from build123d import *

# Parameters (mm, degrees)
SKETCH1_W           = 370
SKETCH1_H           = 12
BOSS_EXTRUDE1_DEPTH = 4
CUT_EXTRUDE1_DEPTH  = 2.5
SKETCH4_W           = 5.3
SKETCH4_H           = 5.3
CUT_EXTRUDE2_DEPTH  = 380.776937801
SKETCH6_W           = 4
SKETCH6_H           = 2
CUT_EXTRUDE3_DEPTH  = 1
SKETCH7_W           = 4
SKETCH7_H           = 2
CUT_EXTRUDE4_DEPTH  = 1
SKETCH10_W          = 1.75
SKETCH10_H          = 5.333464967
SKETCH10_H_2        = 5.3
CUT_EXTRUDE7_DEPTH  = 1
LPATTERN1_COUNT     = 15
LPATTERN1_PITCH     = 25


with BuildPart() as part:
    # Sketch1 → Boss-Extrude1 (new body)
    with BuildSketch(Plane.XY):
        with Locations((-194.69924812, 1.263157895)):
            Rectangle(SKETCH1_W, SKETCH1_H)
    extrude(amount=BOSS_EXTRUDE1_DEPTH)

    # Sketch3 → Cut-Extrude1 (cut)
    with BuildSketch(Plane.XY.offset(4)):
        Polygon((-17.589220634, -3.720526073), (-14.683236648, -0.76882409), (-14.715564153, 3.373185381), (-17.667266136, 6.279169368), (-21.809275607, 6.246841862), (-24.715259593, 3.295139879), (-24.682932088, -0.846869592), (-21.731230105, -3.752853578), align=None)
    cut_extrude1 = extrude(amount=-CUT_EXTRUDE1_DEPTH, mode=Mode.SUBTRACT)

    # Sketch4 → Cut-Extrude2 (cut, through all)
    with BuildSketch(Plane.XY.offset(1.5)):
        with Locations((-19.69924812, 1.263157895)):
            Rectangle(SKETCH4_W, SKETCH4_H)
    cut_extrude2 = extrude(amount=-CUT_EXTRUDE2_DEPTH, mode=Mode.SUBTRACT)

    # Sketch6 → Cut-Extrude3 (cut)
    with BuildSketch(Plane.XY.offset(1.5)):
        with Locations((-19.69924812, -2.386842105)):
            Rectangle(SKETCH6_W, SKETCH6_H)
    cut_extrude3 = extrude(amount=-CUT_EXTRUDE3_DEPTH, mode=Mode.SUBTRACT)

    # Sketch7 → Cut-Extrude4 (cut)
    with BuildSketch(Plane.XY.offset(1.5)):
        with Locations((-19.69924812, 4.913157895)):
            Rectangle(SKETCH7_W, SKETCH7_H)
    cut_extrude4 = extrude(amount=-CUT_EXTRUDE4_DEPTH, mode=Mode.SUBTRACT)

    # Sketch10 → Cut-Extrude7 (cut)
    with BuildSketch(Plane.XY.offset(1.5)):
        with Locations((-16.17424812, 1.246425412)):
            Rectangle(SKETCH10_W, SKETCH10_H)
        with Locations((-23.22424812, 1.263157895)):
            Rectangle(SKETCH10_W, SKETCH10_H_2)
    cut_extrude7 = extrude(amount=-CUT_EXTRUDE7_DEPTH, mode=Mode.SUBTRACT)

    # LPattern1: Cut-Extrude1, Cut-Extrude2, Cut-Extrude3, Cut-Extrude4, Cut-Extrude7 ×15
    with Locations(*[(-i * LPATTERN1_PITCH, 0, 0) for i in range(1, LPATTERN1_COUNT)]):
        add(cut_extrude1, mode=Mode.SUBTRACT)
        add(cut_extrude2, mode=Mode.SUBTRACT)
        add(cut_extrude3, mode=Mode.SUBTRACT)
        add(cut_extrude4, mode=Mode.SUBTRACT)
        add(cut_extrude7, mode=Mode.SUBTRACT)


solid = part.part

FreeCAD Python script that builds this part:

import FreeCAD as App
import Part
import Sketcher
from FreeCAD import Vector
Q = App.Units.Quantity


def add_polygon(sketch, points):
    """Adds a closed chain of lines whose ends are joined by coincident constraints."""
    first, n = sketch.GeometryCount, len(points)
    for a, b in zip(points, points[1:] + points[:1]):
        sketch.addGeometry(Part.LineSegment(App.Vector(*a, 0), App.Vector(*b, 0)), False)
    for i in range(n):
        sketch.addConstraint(Sketcher.Constraint("Coincident", first + i, 2, first + (i + 1) % n, 1))

doc = App.newDocument("Part")
body = doc.addObject("PartDesign::Body", "Body")

sketch1 = body.newObject("Sketcher::SketchObject", "Sketch")
sketch1.AttachmentSupport = (doc.getObject("XY_Plane"), [""])
sketch1.MapMode = "FlatFace"
add_polygon(sketch1, [(-380, 7), (-380, -5), (-10, -5), (-10, 7)])
sketch1.addConstraint([
    Sketcher.Constraint("Vertical", 0),
    Sketcher.Constraint("Horizontal", 1),
    Sketcher.Constraint("Vertical", 2),
    Sketcher.Constraint("Horizontal", 3),
    Sketcher.Constraint("DistanceX", 1, 1, 1, 2, Q("370 mm")),
    Sketcher.Constraint("DistanceY", 0, 2, 0, 1, Q("12 mm")),
    Sketcher.Constraint("DistanceX", 0, 2, -1, 1, Q("379.699248 mm")),
    Sketcher.Constraint("DistanceY", 0, 2, -1, 1, Q("4.736842 mm")),
])
pad1 = body.newObject("PartDesign::Pad", "Pad")
pad1.Profile = sketch1
pad1.Length = 4

sketch2 = body.newObject("Sketcher::SketchObject", "Sketch001")
sketch2.AttachmentSupport = (doc.getObject("XY_Plane"), [""])
sketch2.MapMode = "FlatFace"
sketch2.AttachmentOffset = App.Placement(Vector(0, 0, 4), App.Rotation())
add_polygon(sketch2, [(-17.6, -3.7), (-14.7, -0.8), (-14.7, 3.4), (-17.7, 6.3), (-21.8, 6.2), (-24.7, 3.3), (-24.7, -0.8), (-21.7, -3.8)])
sketch2.addConstraint([
    Sketcher.Constraint("Perpendicular", 0, 2),
    Sketcher.Constraint("Perpendicular", 1, 3),
    Sketcher.Constraint("Perpendicular", 2, 4),
    Sketcher.Constraint("Perpendicular", 3, 5),
    Sketcher.Constraint("Perpendicular", 4, 6),
    Sketcher.Constraint("Perpendicular", 5, 7),
    Sketcher.Constraint("Equal", 0, 1),
    Sketcher.Constraint("Equal", 1, 2),
    Sketcher.Constraint("Equal", 2, 3),
    Sketcher.Constraint("Equal", 3, 4),
    Sketcher.Constraint("Equal", 4, 5),
    Sketcher.Constraint("DistanceX", 2, 2, 1, 2, Q("2.951702 mm")),
    Sketcher.Constraint("DistanceY", -1, 1, 2, 2, Q("6.279169 mm")),
    Sketcher.Constraint("DistanceY", -1, 1, 3, 2, Q("6.246842 mm")),
    Sketcher.Constraint("DistanceX", 4, 2, -1, 1, Q("24.71526 mm")),
    Sketcher.Constraint("DistanceY", 5, 2, -1, 1, Q("0.84687 mm")),
])
pocket1 = body.newObject("PartDesign::Pocket", "Pocket")
pocket1.Profile = sketch2
pocket1.Length = 2.5

sketch3 = body.newObject("Sketcher::SketchObject", "Sketch002")
sketch3.AttachmentSupport = (doc.getObject("XY_Plane"), [""])
sketch3.MapMode = "FlatFace"
sketch3.AttachmentOffset = App.Placement(Vector(0, 0, 1.5), App.Rotation())
add_polygon(sketch3, [(-22, 4), (-22, -1), (-17, -1), (-17, 4)])
sketch3.addConstraint([
    Sketcher.Constraint("Vertical", 0),
    Sketcher.Constraint("Horizontal", 1),
    Sketcher.Constraint("Vertical", 2),
    Sketcher.Constraint("Horizontal", 3),
    Sketcher.Constraint("Equal", 3, 0),
    Sketcher.Constraint("DistanceX", 1, 1, 1, 2, Q("5.3 mm")),
    Sketcher.Constraint("DistanceX", 0, 2, -1, 1, Q("22.349248 mm")),
    Sketcher.Constraint("DistanceY", 0, 2, -1, 1, Q("1.386842 mm")),
])
pocket2 = body.newObject("PartDesign::Pocket", "Pocket001")
pocket2.Profile = sketch3
pocket2.Type = "ThroughAll"

sketch4 = body.newObject("Sketcher::SketchObject", "Sketch003")
sketch4.AttachmentSupport = (doc.getObject("XY_Plane"), [""])
sketch4.MapMode = "FlatFace"
sketch4.AttachmentOffset = App.Placement(Vector(0, 0, 1.5), App.Rotation())
add_polygon(sketch4, [(-21.7, -1.4), (-21.7, -3.4), (-17.7, -3.4), (-17.7, -1.4)])
sketch4.addConstraint([
    Sketcher.Constraint("Vertical", 0),
    Sketcher.Constraint("Horizontal", 1),
    Sketcher.Constraint("Vertical", 2),
    Sketcher.Constraint("Horizontal", 3),
    Sketcher.Constraint("DistanceX", 1, 1, 1, 2, Q("4 mm")),
    Sketcher.Constraint("DistanceY", 0, 2, 0, 1, Q("2 mm")),
    Sketcher.Constraint("DistanceX", 0, 2, -1, 1, Q("21.699248 mm")),
    Sketcher.Constraint("DistanceY", 0, 2, -1, 1, Q("3.386842 mm")),
])
pocket3 = body.newObject("PartDesign::Pocket", "Pocket002")
pocket3.Profile = sketch4
pocket3.Length = 1

sketch5 = body.newObject("Sketcher::SketchObject", "Sketch004")
sketch5.AttachmentSupport = (doc.getObject("XY_Plane"), [""])
sketch5.MapMode = "FlatFace"
sketch5.AttachmentOffset = App.Placement(Vector(0, 0, 1.5), App.Rotation())
add_polygon(sketch5, [(-21.7, 5.9), (-21.7, 3.9), (-17.7, 3.9), (-17.7, 5.9)])
sketch5.addConstraint([
    Sketcher.Constraint("Vertical", 0),
    Sketcher.Constraint("Horizontal", 1),
    Sketcher.Constraint("Vertical", 2),
    Sketcher.Constraint("Horizontal", 3),
    Sketcher.Constraint("DistanceX", 1, 1, 1, 2, Q("4 mm")),
    Sketcher.Constraint("DistanceY", 0, 2, 0, 1, Q("2 mm")),
    Sketcher.Constraint("DistanceX", 0, 2, -1, 1, Q("21.699248 mm")),
    Sketcher.Constraint("DistanceY", -1, 1, 0, 2, Q("3.913158 mm")),
])
pocket4 = body.newObject("PartDesign::Pocket", "Pocket003")
pocket4.Profile = sketch5
pocket4.Length = 1

sketch6 = body.newObject("Sketcher::SketchObject", "Sketch005")
sketch6.AttachmentSupport = (doc.getObject("XY_Plane"), [""])
sketch6.MapMode = "FlatFace"
sketch6.AttachmentOffset = App.Placement(Vector(0, 0, 1.5), App.Rotation())
add_polygon(sketch6, [(-17, 3.9), (-17, -1.4), (-15.3, -1.4), (-15.3, 3.9)])
add_polygon(sketch6, [(-24.1, 3.9), (-24.1, -1.4), (-22.3, -1.4), (-22.3, 3.9)])
sketch6.addConstraint([
    Sketcher.Constraint("Vertical", 0),
    Sketcher.Constraint("Horizontal", 1),
    Sketcher.Constraint("Vertical", 2),
    Sketcher.Constraint("Horizontal", 3),
    Sketcher.Constraint("Vertical", 4),
    Sketcher.Constraint("Horizontal", 5),
    Sketcher.Constraint("Vertical", 6),
    Sketcher.Constraint("Horizontal", 7),
    Sketcher.Constraint("Horizontal", 3, 2, 6, 2),
    Sketcher.Constraint("Equal", 3, 5),
    Sketcher.Constraint("DistanceY", 4, 2, 4, 1, Q("5.3 mm")),
    Sketcher.Constraint("DistanceX", 1, 1, 1, 2, Q("1.75 mm")),
    Sketcher.Constraint("DistanceX", 4, 2, 1, 2, Q("8.8 mm")),
    Sketcher.Constraint("DistanceY", 0, 2, 0, 1, Q("5.333465 mm")),
    Sketcher.Constraint("DistanceX", 0, 2, -1, 1, Q("17.049248 mm")),
    Sketcher.Constraint("DistanceY", 0, 2, -1, 1, Q("1.420307 mm")),
])
pocket5 = body.newObject("PartDesign::Pocket", "Pocket004")
pocket5.Profile = sketch6
pocket5.Length = 1
doc.recompute()

linearpattern = body.newObject("PartDesign::LinearPattern", "LinearPattern")
linearpattern.Originals = [pocket1, pocket2, pocket3, pocket4, pocket5]
linearpattern.Direction = (doc.getObject("X_Axis"), [""])
linearpattern.Mode = "offset"
linearpattern.Offset = 25
linearpattern.Occurrences = 15
linearpattern.Reversed = True
body.Tip = linearpattern

doc.recompute()
